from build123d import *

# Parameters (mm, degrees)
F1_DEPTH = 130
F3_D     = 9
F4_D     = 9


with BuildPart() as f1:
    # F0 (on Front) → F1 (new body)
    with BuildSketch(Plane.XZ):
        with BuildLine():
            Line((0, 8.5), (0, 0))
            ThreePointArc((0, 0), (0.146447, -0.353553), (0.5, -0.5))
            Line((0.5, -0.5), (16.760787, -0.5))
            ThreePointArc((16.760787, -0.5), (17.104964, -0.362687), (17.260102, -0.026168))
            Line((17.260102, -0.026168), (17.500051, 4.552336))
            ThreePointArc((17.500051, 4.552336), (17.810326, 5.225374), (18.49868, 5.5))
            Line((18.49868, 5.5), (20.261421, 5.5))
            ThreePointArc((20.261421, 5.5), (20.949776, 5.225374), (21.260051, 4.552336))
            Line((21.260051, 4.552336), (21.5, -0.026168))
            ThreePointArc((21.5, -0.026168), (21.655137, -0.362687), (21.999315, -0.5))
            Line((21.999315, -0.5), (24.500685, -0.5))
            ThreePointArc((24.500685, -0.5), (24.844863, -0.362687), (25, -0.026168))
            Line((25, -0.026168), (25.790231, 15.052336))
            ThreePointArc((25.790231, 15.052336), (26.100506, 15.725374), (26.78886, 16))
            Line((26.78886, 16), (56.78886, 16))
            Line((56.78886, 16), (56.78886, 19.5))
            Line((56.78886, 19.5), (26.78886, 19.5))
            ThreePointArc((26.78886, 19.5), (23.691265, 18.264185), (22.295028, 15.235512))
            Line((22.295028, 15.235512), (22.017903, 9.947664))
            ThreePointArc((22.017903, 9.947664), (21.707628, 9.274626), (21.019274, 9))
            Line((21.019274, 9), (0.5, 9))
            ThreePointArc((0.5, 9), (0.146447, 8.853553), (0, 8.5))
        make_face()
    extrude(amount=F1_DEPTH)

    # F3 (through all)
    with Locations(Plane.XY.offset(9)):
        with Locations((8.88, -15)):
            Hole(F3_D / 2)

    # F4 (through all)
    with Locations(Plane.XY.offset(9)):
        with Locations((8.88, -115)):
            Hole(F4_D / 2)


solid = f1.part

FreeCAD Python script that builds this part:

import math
import FreeCAD as App
import Part
import Sketcher
Q = App.Units.Quantity

doc = App.newDocument("Part")
body = doc.addObject("PartDesign::Body", "Body")

sketch1 = body.newObject("Sketcher::SketchObject", "Sketch")
sketch1.AttachmentSupport = (doc.getObject("XZ_Plane"), [""])
sketch1.MapMode = "FlatFace"
sketch1.addGeometry(Part.LineSegment(App.Vector(0, 8.5, 0), App.Vector(0, 0, 0)), False)
sketch1.addGeometry(Part.ArcOfCircle(Part.Circle(App.Vector(0.5, 0, 0), App.Vector(0, 0, 1), 0.5), math.radians(-180), math.radians(-90)), False)
sketch1.addGeometry(Part.LineSegment(App.Vector(0.5, -0.5, 0), App.Vector(16.76, -0.5, 0)), False)
sketch1.addGeometry(Part.ArcOfCircle(Part.Circle(App.Vector(16.76, 0, 0), App.Vector(0, 0, 1), 0.5), math.radians(-90), math.radians(-3)), False)
sketch1.addGeometry(Part.LineSegment(App.Vector(17.26, -0.03, 0), App.Vector(17.5, 4.55, 0)), False)
sketch1.addGeometry(Part.ArcOfCircle(Part.Circle(App.Vector(18.5, 4.5, 0), App.Vector(0, 0, 1), 1), math.radians(90), math.radians(177)), False)
sketch1.addGeometry(Part.LineSegment(App.Vector(18.5, 5.5, 0), App.Vector(20.26, 5.5, 0)), False)
sketch1.addGeometry(Part.ArcOfCircle(Part.Circle(App.Vector(20.26, 4.5, 0), App.Vector(0, 0, 1), 1), math.radians(3), math.radians(90)), False)
sketch1.addGeometry(Part.LineSegment(App.Vector(21.26, 4.55, 0), App.Vector(21.5, -0.03, 0)), False)
sketch1.addGeometry(Part.ArcOfCircle(Part.Circle(App.Vector(22, 0, 0), App.Vector(0, 0, 1), 0.5), math.radians(-177), math.radians(-90)), False)
sketch1.addGeometry(Part.LineSegment(App.Vector(22, -0.5, 0), App.Vector(24.5, -0.5, 0)), False)
sketch1.addGeometry(Part.ArcOfCircle(Part.Circle(App.Vector(24.5, 0, 0), App.Vector(0, 0, 1), 0.5), math.radians(-90), math.radians(-3)), False)
sketch1.addGeometry(Part.LineSegment(App.Vector(25, -0.03, 0), App.Vector(25.79, 15.05, 0)), False)
sketch1.addGeometry(Part.ArcOfCircle(Part.Circle(App.Vector(26.79, 15, 0), App.Vector(0, 0, 1), 1), math.radians(90), math.radians(177)), False)
sketch1.addGeometry(Part.LineSegment(App.Vector(26.79, 16, 0), App.Vector(56.79, 16, 0)), False)
sketch1.addGeometry(Part.LineSegment(App.Vector(56.79, 16, 0), App.Vector(56.79, 19.5, 0)), False)
sketch1.addGeometry(Part.LineSegment(App.Vector(56.79, 19.5, 0), App.Vector(26.79, 19.5, 0)), False)
sketch1.addGeometry(Part.ArcOfCircle(Part.Circle(App.Vector(26.79, 15, 0), App.Vector(0, 0, 1), 4.5), math.radians(90), math.radians(177)), False)
sketch1.addGeometry(Part.LineSegment(App.Vector(22.3, 15.24, 0), App.Vector(22.02, 9.95, 0)), False)
sketch1.addGeometry(Part.ArcOfCircle(Part.Circle(App.Vector(21.02, 10, 0), App.Vector(0, 0, 1), 1), math.radians(-90), math.radians(-3)), False)
sketch1.addGeometry(Part.LineSegment(App.Vector(21.02, 9, 0), App.Vector(0.5, 9, 0)), False)
sketch1.addGeometry(Part.ArcOfCircle(Part.Circle(App.Vector(0.5, 8.5, 0), App.Vector(0, 0, 1), 0.5), math.radians(90), math.radians(180)), False)
sketch1.addConstraint(Sketcher.Constraint("Coincident", 0, 2, 1, 1))
sketch1.addConstraint(Sketcher.Constraint("Coincident", 1, 2, 2, 1))
sketch1.addConstraint(Sketcher.Constraint("Coincident", 2, 2, 3, 1))
sketch1.addConstraint(Sketcher.Constraint("Coincident", 3, 2, 4, 1))
sketch1.addConstraint(Sketcher.Constraint("Tangent", 4, 2, 5, 2))
sketch1.addConstraint(Sketcher.Constraint("Tangent", 5, 1, 6, 1))
sketch1.addConstraint(Sketcher.Constraint("Tangent", 6, 2, 7, 2))
sketch1.addConstraint(Sketcher.Constraint("Tangent", 7, 1, 8, 1))
sketch1.addConstraint(Sketcher.Constraint("Tangent", 8, 2, 9, 1))
sketch1.addConstraint(Sketcher.Constraint("Tangent", 9, 2, 10, 1))
sketch1.addConstraint(Sketcher.Constraint("Tangent", 10, 2, 11, 1))
sketch1.addConstraint(Sketcher.Constraint("Tangent", 11, 2, 12, 1))
sketch1.addConstraint(Sketcher.Constraint("Tangent", 12, 2, 13, 2))
sketch1.addConstraint(Sketcher.Constraint("Tangent", 13, 1, 14, 1))
sketch1.addConstraint(Sketcher.Constraint("Coincident", 14, 2, 15, 1))
sketch1.addConstraint(Sketcher.Constraint("Coincident", 15, 2, 16, 1))
sketch1.addConstraint(Sketcher.Constraint("Tangent", 16, 2, 17, 1))
sketch1.addConstraint(Sketcher.Constraint("Tangent", 17, 2, 18, 1))
sketch1.addConstraint(Sketcher.Constraint("Tangent", 18, 2, 19, 2))
sketch1.addConstraint(Sketcher.Constraint("Tangent", 19, 1, 20, 1))
sketch1.addConstraint(Sketcher.Constraint("Coincident", 20, 2, 21, 1))
sketch1.addConstraint(Sketcher.Constraint("Coincident", 21, 2, 0, 1))
sketch1.addConstraint(Sketcher.Constraint("Vertical", 0))
sketch1.addConstraint(Sketcher.Constraint("Horizontal", 2))
sketch1.addConstraint(Sketcher.Constraint("Horizontal", 6))
sketch1.addConstraint(Sketcher.Constraint("Horizontal", 10))
sketch1.addConstraint(Sketcher.Constraint("Horizontal", 14))
sketch1.addConstraint(Sketcher.Constraint("Vertical", 15))
sketch1.addConstraint(Sketcher.Constraint("Horizontal", 16))
sketch1.addConstraint(Sketcher.Constraint("Horizontal", 20))
sketch1.addConstraint(Sketcher.Constraint("Coincident", 0, 2, -1, 1))
sketch1.addConstraint(Sketcher.Constraint("Coincident", 17, 3, 13, 3))
sketch1.addConstraint(Sketcher.Constraint("Equal", 1, 3))
sketch1.addConstraint(Sketcher.Constraint("Equal", 5, 7))
sketch1.addConstraint(Sketcher.Constraint("Equal", 3, 9))
sketch1.addConstraint(Sketcher.Constraint("Equal", 9, 11))
sketch1.addConstraint(Sketcher.Constraint("Equal", 7, 13))
sketch1.addConstraint(Sketcher.Constraint("Equal", 13, 19))
sketch1.addConstraint(Sketcher.Constraint("Equal", 11, 21))
sketch1.addConstraint(Sketcher.Constraint("PointOnObject", 1, 3, -1))
sketch1.addConstraint(Sketcher.Constraint("PointOnObject", 9, 3, -1))
sketch1.addConstraint(Sketcher.Constraint("Parallel", 4, 12))
sketch1.addConstraint(Sketcher.Constraint("Parallel", 12, 18))
sketch1.addConstraint(Sketcher.Constraint("Horizontal", 4, 2, 7, 1))
sketch1.addConstraint(Sketcher.Constraint("Horizontal", 3, 2, 8, 2))
sketch1.addConstraint(Sketcher.Constraint("Vertical", 21, 3, 1, 2))
sketch1.addConstraint(Sketcher.Constraint("Vertical", 3, 3, 2, 2))
sketch1.addConstraint(Sketcher.Constraint("Vertical", 1, 2, 20, 2))
sketch1.addConstraint(Sketcher.Constraint("Radius", 5, 1.000001))
sketch1.addConstraint(Sketcher.Constraint("Radius", 1, 0.500001))
sketch1.addConstraint(Sketcher.Constraint("Radius", 17, 4.499999))
sketch1.addConstraint(Sketcher.Constraint("DistanceX", 14, 1, 14, 2, 30.0))
sketch1.addConstraint(Sketcher.Constraint("Angle", 4, Q("87.000003 deg")))
sketch1.addConstraint(Sketcher.Constraint("DistanceY", 0, 2, 0, 1, 8.5))
sketch1.addConstraint(Sketcher.Constraint("DistanceY", -1, 1, 13, 3, 14.999999))
sketch1.addConstraint(Sketcher.Constraint("DistanceY", -1, 1, 19, 3, 10.000001))
sketch1.addConstraint(Sketcher.Constraint("DistanceX", -1, 1, 11, 2, 25.0))
sketch1.addConstraint(Sketcher.Constraint("DistanceY", 5, 3, 21, 3, 3.999999))
sketch1.addConstraint(Sketcher.Constraint("DistanceX", -1, 1, 8, 2, 21.5))
sketch1.addConstraint(Sketcher.Constraint("DistanceX", 4, 2, 7, 1, 3.76))
pad1 = body.newObject("PartDesign::Pad", "Pad")
pad1.Profile = sketch1
pad1.Length = 130

sketch2 = body.newObject("Sketcher::SketchObject", "Sketch001")
sketch2.AttachmentSupport = (doc.getObject("XY_Plane"), [""])
sketch2.MapMode = "FlatFace"
sketch2.AttachmentOffset = App.Placement(App.Vector(0, 0, 9), App.Rotation())
sketch2.addGeometry(Part.Circle(App.Vector(8.9, -15, 0), App.Vector(0, 0, 1), 4.5), False)
sketch2.addConstraint(Sketcher.Constraint("Diameter", 0, 9.0))
sketch2.addConstraint(Sketcher.Constraint("DistanceY", 0, 3, -1, 1, 15.0))
sketch2.addConstraint(Sketcher.Constraint("DistanceX", -1, 1, 0, 3, 8.88))
doc.recompute()
hole = body.newObject("PartDesign::Hole", "Hole")
hole.Profile = sketch2
hole.ThreadType = "None"
hole.Diameter = 9
hole.DepthType = "ThroughAll"

sketch3 = body.newObject("Sketcher::SketchObject", "Sketch002")
sketch3.AttachmentSupport = (doc.getObject("XY_Plane"), [""])
sketch3.MapMode = "FlatFace"
sketch3.AttachmentOffset = App.Placement(App.Vector(0, 0, 9), App.Rotation())
sketch3.addGeometry(Part.Circle(App.Vector(8.9, -115, 0), App.Vector(0, 0, 1), 4.5), False)
sketch3.addConstraint(Sketcher.Constraint("Diameter", 0, 9.0))
sketch3.addConstraint(Sketcher.Constraint("DistanceY", 0, 3, -1, 1, 115.0))
sketch3.addConstraint(Sketcher.Constraint("DistanceX", -1, 1, 0, 3, 8.88))
doc.recompute()
hole2 = body.newObject("PartDesign::Hole", "Hole001")
hole2.Profile = sketch3
hole2.ThreadType = "None"
hole2.Diameter = 9
hole2.DepthType = "ThroughAll"

doc.recompute()
